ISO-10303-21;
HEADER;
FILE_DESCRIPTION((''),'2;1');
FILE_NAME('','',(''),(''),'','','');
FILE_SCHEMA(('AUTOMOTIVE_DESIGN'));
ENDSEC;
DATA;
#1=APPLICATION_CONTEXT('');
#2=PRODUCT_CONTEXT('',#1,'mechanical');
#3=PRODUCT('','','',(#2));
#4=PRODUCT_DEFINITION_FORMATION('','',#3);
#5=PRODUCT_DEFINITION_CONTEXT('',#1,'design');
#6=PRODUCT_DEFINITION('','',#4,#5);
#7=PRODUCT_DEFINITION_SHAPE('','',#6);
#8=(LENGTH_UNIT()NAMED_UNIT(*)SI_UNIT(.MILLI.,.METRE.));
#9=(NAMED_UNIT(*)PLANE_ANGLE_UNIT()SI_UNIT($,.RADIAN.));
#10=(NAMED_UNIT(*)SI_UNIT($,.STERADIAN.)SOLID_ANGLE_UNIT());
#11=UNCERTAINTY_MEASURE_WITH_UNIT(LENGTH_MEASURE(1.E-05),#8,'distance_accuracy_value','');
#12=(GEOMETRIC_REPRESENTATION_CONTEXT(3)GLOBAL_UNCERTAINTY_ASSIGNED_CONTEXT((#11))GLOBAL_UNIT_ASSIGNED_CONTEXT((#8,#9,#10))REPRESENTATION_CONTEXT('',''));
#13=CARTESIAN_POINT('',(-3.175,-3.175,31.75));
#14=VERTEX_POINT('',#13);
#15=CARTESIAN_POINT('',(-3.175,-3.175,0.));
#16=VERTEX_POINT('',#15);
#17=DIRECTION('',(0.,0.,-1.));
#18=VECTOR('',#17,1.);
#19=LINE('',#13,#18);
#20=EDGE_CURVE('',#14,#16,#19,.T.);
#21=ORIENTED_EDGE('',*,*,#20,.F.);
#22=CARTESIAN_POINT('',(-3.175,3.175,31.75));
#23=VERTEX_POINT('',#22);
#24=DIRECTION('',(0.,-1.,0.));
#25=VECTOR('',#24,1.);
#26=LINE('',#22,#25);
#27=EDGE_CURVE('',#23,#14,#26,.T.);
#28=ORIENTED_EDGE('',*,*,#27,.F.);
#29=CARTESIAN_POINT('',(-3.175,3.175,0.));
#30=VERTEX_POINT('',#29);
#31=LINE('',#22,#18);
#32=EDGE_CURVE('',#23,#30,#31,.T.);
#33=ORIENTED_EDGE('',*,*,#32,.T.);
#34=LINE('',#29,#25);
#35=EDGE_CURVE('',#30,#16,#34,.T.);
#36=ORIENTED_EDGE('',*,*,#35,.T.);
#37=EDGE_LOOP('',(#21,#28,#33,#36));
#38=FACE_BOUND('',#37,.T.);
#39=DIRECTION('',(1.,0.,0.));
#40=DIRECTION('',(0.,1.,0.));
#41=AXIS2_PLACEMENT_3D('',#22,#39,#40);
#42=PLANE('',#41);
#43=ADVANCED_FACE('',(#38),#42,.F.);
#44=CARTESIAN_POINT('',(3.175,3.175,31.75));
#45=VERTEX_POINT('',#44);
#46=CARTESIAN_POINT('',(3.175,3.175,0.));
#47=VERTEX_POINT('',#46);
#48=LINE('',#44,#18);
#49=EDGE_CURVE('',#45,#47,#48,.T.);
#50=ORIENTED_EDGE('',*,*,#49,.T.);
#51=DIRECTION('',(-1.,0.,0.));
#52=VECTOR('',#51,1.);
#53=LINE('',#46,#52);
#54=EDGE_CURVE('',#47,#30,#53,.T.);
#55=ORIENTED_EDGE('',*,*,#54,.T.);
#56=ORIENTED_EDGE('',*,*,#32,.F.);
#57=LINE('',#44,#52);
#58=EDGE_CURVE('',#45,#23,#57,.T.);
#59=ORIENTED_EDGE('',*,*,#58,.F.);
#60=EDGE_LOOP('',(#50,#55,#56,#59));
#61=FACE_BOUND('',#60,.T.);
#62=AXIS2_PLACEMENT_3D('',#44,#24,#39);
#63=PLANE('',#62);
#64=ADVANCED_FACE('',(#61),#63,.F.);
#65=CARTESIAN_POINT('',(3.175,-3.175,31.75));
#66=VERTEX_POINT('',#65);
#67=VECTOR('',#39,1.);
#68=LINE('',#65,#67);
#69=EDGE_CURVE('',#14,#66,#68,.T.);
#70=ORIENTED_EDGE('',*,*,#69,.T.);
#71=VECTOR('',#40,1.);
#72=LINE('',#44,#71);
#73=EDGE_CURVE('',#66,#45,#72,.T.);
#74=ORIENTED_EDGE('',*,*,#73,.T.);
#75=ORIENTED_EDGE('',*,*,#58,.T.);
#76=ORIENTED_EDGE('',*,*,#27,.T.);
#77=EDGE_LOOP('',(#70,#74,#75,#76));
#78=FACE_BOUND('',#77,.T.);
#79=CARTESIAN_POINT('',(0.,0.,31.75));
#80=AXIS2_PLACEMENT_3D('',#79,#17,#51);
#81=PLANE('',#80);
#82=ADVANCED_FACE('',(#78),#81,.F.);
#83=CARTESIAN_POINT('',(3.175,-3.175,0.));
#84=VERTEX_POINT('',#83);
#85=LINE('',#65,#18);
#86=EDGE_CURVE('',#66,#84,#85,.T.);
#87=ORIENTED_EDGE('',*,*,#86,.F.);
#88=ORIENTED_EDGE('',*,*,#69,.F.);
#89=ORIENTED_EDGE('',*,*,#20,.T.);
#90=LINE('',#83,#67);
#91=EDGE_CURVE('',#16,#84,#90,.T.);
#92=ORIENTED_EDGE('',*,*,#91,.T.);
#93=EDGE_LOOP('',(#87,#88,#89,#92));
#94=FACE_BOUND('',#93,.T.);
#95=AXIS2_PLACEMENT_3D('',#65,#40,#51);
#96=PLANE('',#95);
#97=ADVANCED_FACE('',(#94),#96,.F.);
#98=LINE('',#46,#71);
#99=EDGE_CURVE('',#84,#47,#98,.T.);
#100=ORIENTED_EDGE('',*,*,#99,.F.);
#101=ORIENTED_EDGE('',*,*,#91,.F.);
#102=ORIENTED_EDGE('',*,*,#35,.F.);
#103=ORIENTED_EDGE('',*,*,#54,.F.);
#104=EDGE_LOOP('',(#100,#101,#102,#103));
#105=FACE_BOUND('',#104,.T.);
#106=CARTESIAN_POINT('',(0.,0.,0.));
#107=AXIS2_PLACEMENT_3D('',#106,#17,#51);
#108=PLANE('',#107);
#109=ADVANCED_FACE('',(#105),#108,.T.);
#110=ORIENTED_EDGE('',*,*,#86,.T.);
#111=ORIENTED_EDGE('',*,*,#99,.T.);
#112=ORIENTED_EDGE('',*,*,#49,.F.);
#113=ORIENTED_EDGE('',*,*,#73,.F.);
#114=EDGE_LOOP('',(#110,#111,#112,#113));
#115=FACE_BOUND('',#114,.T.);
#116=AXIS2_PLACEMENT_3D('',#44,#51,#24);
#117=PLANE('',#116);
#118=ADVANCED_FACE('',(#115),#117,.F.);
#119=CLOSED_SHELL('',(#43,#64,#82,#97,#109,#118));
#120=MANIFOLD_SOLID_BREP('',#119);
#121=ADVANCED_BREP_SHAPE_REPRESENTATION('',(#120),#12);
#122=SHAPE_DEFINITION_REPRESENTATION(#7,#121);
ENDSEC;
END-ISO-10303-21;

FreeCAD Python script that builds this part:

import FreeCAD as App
import Part
import Sketcher
from FreeCAD import Vector
Q = App.Units.Quantity


def add_polygon(sketch, points):
    """Adds a closed chain of lines whose ends are joined by coincident constraints."""
    first, n = sketch.GeometryCount, len(points)
    for a, b in zip(points, points[1:] + points[:1]):
        sketch.addGeometry(Part.LineSegment(App.Vector(*a, 0), App.Vector(*b, 0)), False)
    for i in range(n):
        sketch.addConstraint(Sketcher.Constraint("Coincident", first + i, 2, first + (i + 1) % n, 1))

doc = App.newDocument("Part")
body = doc.addObject("PartDesign::Body", "Body")

# Sketch on XY plane
sketch1 = body.newObject("Sketcher::SketchObject", "Sketch")
sketch1.AttachmentSupport = (doc.getObject("XY_Plane"), [""])
sketch1.MapMode = "FlatFace"
add_polygon(sketch1, [(-3, 3), (-3, -3), (3, -3), (3, 3)])  # lines 0-3
sketch1.addConstraint([
    Sketcher.Constraint("Vertical", 0),
    Sketcher.Constraint("Horizontal", 1),
    Sketcher.Constraint("Vertical", 2),
    Sketcher.Constraint("Horizontal", 3),
    Sketcher.Constraint("Symmetric", 0, 2, 2, 2, -1, 1),
    Sketcher.Constraint("Equal", 3, 0),
    Sketcher.Constraint("DistanceX", 1, 1, 1, 2, Q("0.25 in")),
])
pad1 = body.newObject("PartDesign::Pad", "Pad")
pad1.Profile = sketch1
pad1.Length = Q("1.25 in")

doc.recompute()
